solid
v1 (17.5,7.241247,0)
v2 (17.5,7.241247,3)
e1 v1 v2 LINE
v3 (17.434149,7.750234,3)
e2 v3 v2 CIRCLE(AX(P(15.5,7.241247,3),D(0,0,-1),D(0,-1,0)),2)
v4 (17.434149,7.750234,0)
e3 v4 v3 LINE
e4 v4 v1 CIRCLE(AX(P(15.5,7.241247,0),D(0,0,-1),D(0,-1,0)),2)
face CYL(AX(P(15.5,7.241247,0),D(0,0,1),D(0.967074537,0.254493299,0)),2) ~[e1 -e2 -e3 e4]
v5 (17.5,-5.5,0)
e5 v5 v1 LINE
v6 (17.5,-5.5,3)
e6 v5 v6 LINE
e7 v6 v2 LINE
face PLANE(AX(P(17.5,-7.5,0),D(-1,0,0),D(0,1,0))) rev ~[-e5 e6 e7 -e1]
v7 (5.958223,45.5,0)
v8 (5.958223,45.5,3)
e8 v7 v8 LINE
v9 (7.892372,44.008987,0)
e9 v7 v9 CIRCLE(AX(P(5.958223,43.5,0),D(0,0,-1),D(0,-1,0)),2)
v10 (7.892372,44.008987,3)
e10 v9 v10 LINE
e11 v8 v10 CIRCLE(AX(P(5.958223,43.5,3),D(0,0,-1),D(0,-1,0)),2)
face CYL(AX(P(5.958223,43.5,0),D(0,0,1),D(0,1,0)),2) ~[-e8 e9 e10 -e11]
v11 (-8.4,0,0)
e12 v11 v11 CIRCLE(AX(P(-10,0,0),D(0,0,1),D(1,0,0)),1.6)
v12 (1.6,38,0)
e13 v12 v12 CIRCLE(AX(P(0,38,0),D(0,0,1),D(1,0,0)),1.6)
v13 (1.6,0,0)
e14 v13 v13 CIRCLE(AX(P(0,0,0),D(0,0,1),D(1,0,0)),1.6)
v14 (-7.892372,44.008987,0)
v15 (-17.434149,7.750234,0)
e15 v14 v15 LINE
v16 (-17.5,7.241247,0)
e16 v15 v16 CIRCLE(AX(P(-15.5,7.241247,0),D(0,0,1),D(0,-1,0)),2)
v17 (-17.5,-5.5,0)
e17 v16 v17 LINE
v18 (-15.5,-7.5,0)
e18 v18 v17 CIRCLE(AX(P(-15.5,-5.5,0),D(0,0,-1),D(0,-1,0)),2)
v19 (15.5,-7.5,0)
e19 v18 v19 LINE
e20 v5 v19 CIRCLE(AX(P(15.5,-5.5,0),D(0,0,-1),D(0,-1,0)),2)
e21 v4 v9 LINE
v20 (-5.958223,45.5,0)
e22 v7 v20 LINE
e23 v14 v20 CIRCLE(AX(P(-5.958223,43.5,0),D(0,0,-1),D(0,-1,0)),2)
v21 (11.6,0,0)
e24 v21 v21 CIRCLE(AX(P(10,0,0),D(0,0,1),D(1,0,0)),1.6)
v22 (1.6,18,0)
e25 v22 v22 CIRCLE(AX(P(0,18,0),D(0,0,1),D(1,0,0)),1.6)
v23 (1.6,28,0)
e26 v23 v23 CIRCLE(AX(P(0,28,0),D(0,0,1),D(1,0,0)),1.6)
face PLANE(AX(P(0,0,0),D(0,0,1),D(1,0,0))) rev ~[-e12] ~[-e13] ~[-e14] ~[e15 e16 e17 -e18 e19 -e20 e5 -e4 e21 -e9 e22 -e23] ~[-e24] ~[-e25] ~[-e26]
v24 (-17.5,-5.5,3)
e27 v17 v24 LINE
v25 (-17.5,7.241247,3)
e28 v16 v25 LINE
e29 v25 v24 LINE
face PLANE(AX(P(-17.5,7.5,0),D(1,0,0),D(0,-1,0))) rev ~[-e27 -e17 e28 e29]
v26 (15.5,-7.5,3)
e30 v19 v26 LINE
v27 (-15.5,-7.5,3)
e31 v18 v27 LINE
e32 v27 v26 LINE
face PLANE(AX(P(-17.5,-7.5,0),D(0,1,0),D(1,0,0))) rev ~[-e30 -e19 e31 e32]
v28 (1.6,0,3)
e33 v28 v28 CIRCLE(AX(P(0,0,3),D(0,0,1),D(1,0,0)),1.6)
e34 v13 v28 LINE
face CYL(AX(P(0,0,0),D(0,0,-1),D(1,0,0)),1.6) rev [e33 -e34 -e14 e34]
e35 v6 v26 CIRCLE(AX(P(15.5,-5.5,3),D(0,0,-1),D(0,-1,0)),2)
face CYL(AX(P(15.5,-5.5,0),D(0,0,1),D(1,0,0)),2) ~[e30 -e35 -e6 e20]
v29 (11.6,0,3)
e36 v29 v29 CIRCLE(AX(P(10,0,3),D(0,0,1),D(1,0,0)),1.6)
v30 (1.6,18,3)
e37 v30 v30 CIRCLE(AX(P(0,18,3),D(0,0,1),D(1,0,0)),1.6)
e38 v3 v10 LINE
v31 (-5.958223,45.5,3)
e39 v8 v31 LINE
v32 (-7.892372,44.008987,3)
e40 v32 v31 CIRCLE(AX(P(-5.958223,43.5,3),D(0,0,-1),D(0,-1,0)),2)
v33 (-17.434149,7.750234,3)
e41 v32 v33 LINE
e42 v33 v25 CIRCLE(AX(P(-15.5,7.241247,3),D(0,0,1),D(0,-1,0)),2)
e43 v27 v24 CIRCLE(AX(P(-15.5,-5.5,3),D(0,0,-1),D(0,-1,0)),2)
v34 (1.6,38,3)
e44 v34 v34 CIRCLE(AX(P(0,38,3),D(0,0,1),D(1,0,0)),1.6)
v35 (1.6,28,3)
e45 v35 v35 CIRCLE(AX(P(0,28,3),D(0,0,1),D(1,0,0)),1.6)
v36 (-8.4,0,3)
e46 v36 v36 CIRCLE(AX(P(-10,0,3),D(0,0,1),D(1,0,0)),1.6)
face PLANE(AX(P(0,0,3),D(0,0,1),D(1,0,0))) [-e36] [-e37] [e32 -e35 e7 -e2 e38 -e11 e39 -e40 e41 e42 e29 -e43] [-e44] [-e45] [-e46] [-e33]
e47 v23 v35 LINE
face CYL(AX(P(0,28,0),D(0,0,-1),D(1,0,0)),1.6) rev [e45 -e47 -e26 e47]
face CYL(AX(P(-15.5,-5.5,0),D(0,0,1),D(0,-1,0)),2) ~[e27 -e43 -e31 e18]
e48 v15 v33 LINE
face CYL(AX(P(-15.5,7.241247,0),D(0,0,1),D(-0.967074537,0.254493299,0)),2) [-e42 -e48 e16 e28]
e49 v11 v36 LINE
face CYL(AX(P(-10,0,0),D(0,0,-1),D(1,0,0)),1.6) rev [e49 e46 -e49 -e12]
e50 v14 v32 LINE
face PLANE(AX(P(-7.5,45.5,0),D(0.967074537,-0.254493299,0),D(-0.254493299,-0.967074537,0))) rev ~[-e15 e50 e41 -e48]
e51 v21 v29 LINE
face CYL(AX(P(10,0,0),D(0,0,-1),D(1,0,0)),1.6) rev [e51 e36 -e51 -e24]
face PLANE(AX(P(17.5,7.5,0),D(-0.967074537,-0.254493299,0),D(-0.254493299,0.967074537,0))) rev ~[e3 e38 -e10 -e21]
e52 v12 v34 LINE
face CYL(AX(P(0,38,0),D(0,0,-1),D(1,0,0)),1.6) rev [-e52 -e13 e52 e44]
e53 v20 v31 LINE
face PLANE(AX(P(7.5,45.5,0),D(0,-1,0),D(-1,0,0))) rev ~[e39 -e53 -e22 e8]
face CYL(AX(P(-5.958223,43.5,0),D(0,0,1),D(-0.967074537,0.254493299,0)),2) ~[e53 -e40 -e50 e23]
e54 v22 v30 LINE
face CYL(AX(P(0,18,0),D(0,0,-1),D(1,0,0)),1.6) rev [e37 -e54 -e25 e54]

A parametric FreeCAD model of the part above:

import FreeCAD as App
import Part
import Sketcher
from FreeCAD import Vector


def edges_at(feature, points):
    """Names of the edges that pass closest to the given points."""
    edges = feature.Shape.Edges
    near = lambda p: min(range(len(edges)), key=lambda i: edges[i].distToShape(Part.Vertex(*p))[0])
    return sorted({f"Edge{near(p) + 1}" for p in points})

doc = App.newDocument("Part")
body = doc.addObject("PartDesign::Body", "Body")

sketch1 = doc.addObject("Sketcher::SketchObject", "Sketch")
body.addObject(sketch1)
sketch1.AttachmentSupport = (doc.XY_Plane, [""])
sketch1.MapMode = "FlatFace"
sketch1.addGeometry(Part.LineSegment(Vector(-7.5, 45.5, 0), Vector(-17.5, 7.5, 0)), False)
sketch1.addGeometry(Part.LineSegment(Vector(-17.5, 7.5, 0), Vector(-17.5, -7.5, 0)), False)
sketch1.addGeometry(Part.LineSegment(Vector(-17.5, -7.5, 0), Vector(17.5, -7.5, 0)), False)
sketch1.addGeometry(Part.LineSegment(Vector(17.5, -7.5, 0), Vector(17.5, 7.5, 0)), False)
sketch1.addGeometry(Part.LineSegment(Vector(17.5, 7.5, 0), Vector(7.5, 45.5, 0)), False)
sketch1.addGeometry(Part.LineSegment(Vector(7.5, 45.5, 0), Vector(-7.5, 45.5, 0)), False)
sketch1.addGeometry(Part.Circle(Vector(-10, 0, 0), Vector(0, 0, 1), 1.6), False)
sketch1.addGeometry(Part.Circle(Vector(0, 0, 0), Vector(0, 0, 1), 1.6), False)
sketch1.addGeometry(Part.Circle(Vector(10, 0, 0), Vector(0, 0, 1), 1.6), False)
sketch1.addGeometry(Part.Circle(Vector(0, 18, 0), Vector(0, 0, 1), 1.6), False)
sketch1.addGeometry(Part.Circle(Vector(0, 28, 0), Vector(0, 0, 1), 1.6), False)
sketch1.addGeometry(Part.Circle(Vector(0, 38, 0), Vector(0, 0, 1), 1.6), False)
sketch1.addConstraint(Sketcher.Constraint("Coincident", 0, 2, 1, 1))
sketch1.addConstraint(Sketcher.Constraint("Coincident", 1, 2, 2, 1))
sketch1.addConstraint(Sketcher.Constraint("Coincident", 2, 2, 3, 1))
sketch1.addConstraint(Sketcher.Constraint("Coincident", 3, 2, 4, 1))
sketch1.addConstraint(Sketcher.Constraint("Coincident", 4, 2, 5, 1))
sketch1.addConstraint(Sketcher.Constraint("Coincident", 5, 2, 0, 1))
sketch1.addConstraint(Sketcher.Constraint("Vertical", 1))
sketch1.addConstraint(Sketcher.Constraint("Horizontal", 2))
sketch1.addConstraint(Sketcher.Constraint("Vertical", 3))
sketch1.addConstraint(Sketcher.Constraint("Horizontal", 5))
sketch1.addConstraint(Sketcher.Constraint("Coincident", 7, 3, -1, 1))
sketch1.addConstraint(Sketcher.Constraint("Equal", 6, 7))
sketch1.addConstraint(Sketcher.Constraint("Equal", 7, 8))
sketch1.addConstraint(Sketcher.Constraint("Equal", 8, 9))
sketch1.addConstraint(Sketcher.Constraint("Equal", 9, 10))
sketch1.addConstraint(Sketcher.Constraint("Equal", 10, 11))
sketch1.addConstraint(Sketcher.Constraint("Symmetric", 6, 3, 8, 3, -1, 1))
sketch1.addConstraint(Sketcher.Constraint("Symmetric", 0, 2, 2, 2, -1, 1))
sketch1.addConstraint(Sketcher.Constraint("PointOnObject", 6, 3, -1))
sketch1.addConstraint(Sketcher.Constraint("PointOnObject", 9, 3, -2))
sketch1.addConstraint(Sketcher.Constraint("PointOnObject", 10, 3, -2))
sketch1.addConstraint(Sketcher.Constraint("PointOnObject", 11, 3, -2))
sketch1.addConstraint(Sketcher.Constraint("Horizontal", 0, 2, 3, 2))
sketch1.addConstraint(Sketcher.Constraint("Equal", 5, 1))
sketch1.addConstraint(Sketcher.Constraint("Equal", 0, 4))
sketch1.addConstraint(Sketcher.Constraint("Diameter", 6, 3.2))
sketch1.addConstraint(Sketcher.Constraint("DistanceX", 6, 3, -1, 1, 10.0))
sketch1.addConstraint(Sketcher.Constraint("DistanceY", -1, 1, 9, 3, 18.0))
sketch1.addConstraint(Sketcher.Constraint("DistanceY", 9, 3, 10, 3, 10.0))
sketch1.addConstraint(Sketcher.Constraint("DistanceY", 10, 3, 11, 3, 10.0))
sketch1.addConstraint(Sketcher.Constraint("DistanceX", 4, 2, 3, 2, 10.0))
sketch1.addConstraint(Sketcher.Constraint("DistanceY", -1, 1, 0, 2, 7.5))
sketch1.addConstraint(Sketcher.Constraint("DistanceY", 11, 3, 4, 2, 7.5))
pad1 = doc.addObject("PartDesign::Pad", "Pad")
body.addObject(pad1)
pad1.Profile = sketch1
pad1.Length = 3
doc.recompute()

fillet = doc.addObject("PartDesign::Fillet", "Fillet")
body.addObject(fillet)
fillet.Base = (pad1, edges_at(pad1, [
    (-7.5, 45.5, 1.5),
    (7.5, 45.5, 1.5),
    (17.5, 7.5, 1.5),
    (17.5, -7.5, 1.5),
    (-17.5, -7.5, 1.5),
    (-17.5, 7.5, 1.5),
]))
fillet.Radius = 2

doc.recompute()
